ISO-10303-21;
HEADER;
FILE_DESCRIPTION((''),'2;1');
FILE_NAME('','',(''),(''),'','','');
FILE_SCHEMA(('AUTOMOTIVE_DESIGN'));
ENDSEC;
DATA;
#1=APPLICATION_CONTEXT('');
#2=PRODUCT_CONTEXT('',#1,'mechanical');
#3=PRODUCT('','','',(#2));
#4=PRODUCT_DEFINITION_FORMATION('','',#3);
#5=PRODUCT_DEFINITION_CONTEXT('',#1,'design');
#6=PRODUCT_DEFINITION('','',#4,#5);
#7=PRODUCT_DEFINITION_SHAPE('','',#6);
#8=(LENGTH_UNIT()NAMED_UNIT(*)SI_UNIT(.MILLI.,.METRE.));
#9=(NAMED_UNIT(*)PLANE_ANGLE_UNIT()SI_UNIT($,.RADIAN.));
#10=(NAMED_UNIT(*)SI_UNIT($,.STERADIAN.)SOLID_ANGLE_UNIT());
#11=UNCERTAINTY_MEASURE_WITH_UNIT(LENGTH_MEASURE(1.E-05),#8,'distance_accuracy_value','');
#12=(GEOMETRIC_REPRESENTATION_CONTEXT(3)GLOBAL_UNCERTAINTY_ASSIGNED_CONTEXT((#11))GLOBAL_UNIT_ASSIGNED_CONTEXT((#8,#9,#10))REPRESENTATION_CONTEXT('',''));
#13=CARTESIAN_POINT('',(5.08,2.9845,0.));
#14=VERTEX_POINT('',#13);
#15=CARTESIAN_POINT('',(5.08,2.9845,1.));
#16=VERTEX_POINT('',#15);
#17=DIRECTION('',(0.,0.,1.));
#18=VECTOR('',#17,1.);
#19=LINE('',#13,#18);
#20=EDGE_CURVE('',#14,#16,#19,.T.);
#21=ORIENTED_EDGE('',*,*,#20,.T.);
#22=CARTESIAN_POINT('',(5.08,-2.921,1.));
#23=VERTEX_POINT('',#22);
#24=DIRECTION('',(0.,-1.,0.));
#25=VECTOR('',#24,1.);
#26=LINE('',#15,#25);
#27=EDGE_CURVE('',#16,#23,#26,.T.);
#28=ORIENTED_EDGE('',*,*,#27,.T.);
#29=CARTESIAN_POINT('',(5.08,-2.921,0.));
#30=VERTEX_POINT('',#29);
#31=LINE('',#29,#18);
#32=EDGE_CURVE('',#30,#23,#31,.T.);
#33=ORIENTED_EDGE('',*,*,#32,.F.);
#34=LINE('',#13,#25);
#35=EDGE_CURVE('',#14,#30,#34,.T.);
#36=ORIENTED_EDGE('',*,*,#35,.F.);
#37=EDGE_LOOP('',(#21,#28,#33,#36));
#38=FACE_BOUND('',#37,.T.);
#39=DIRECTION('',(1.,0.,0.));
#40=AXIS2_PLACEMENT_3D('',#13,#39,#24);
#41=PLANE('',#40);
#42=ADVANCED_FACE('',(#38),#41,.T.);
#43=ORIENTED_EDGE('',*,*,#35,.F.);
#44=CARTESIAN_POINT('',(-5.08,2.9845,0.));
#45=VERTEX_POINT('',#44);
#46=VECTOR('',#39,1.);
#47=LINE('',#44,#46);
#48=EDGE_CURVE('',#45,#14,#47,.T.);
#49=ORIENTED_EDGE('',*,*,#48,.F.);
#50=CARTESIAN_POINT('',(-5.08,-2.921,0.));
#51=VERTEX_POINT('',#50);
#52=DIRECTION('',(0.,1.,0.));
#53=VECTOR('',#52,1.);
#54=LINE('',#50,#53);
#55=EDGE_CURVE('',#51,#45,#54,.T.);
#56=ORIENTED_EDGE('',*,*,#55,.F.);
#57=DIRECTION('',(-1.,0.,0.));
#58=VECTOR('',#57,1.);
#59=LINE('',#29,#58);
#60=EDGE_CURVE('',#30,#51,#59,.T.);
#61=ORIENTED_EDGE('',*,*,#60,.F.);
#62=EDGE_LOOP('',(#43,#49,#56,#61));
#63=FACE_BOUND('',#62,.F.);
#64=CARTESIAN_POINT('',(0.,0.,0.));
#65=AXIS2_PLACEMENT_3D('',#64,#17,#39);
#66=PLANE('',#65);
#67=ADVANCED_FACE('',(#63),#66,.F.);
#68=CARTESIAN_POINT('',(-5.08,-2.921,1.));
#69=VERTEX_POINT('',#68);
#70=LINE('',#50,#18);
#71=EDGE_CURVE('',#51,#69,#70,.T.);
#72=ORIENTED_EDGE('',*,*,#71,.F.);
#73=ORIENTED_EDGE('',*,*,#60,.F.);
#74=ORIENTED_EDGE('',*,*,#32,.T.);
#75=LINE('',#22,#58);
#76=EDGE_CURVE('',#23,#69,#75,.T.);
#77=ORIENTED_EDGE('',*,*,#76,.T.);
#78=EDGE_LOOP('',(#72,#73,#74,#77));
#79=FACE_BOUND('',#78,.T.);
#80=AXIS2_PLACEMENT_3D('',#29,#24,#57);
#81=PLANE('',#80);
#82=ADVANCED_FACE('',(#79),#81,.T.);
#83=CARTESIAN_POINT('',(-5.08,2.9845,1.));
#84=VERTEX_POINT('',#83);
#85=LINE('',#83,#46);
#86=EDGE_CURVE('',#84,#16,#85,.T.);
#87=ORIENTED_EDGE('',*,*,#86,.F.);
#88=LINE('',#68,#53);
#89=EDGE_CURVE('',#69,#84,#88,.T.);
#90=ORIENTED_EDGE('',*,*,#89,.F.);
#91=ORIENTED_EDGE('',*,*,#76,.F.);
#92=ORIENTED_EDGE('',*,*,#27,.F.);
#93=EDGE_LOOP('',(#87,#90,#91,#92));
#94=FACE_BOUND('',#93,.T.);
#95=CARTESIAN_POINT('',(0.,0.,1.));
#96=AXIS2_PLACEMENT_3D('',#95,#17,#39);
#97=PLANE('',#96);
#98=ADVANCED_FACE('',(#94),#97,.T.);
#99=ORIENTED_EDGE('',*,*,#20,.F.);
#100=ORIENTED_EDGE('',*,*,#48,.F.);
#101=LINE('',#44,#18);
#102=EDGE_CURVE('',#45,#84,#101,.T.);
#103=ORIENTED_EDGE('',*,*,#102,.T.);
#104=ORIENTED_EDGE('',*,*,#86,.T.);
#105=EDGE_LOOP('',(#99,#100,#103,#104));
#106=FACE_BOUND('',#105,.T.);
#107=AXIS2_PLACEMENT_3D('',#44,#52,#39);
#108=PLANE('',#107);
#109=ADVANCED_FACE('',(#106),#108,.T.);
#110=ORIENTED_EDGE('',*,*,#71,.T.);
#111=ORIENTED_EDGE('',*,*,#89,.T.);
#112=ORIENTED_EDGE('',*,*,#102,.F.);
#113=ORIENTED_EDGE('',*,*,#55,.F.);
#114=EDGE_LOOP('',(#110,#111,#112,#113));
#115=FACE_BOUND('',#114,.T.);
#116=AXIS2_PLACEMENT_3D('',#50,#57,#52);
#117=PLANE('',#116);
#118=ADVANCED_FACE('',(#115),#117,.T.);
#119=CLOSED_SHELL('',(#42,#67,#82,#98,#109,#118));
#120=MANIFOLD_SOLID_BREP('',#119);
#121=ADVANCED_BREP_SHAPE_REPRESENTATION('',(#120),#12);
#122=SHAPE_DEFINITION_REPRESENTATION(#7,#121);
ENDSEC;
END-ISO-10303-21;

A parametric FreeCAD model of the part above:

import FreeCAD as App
import Part
import Sketcher


def add_polygon(sketch, points):
    """Adds a closed chain of lines whose ends are joined by coincident constraints."""
    first, n = sketch.GeometryCount, len(points)
    for a, b in zip(points, points[1:] + points[:1]):
        sketch.addGeometry(Part.LineSegment(App.Vector(*a, 0), App.Vector(*b, 0)), False)
    for i in range(n):
        sketch.addConstraint(Sketcher.Constraint("Coincident", first + i, 2, first + (i + 1) % n, 1))

doc = App.newDocument("Part")
params = doc.addObject("Spreadsheet::Sheet", "Params")
for row, (alias, value) in enumerate([
    ("sketch1_width", "10.16 mm"),
    ("pad1_length", "1 mm"),
], start=1):
    params.set(f"A{row}", alias)
    params.set(f"B{row}", "=" + value)
    params.setAlias(f"B{row}", alias)

body = doc.addObject("PartDesign::Body", "Body")

sketch1 = doc.addObject("Sketcher::SketchObject", "Sketch")
body.addObject(sketch1)
sketch1.AttachmentSupport = (doc.XY_Plane, [""])
sketch1.MapMode = "FlatFace"
add_polygon(sketch1, [(5, 3), (-5, 3), (-5, -3), (5, -3)])
sketch1.addConstraint(Sketcher.Constraint("Horizontal", 0))
sketch1.addConstraint(Sketcher.Constraint("Vertical", 1))
sketch1.addConstraint(Sketcher.Constraint("Horizontal", 2))
sketch1.addConstraint(Sketcher.Constraint("Vertical", 3))
sketch1.addConstraint(Sketcher.Constraint("DistanceX", 0, 2, 0, 1, 10.16))
sketch1.addConstraint(Sketcher.Constraint("DistanceX", 0, 2, -1, 1, 5.08))
sketch1.addConstraint(Sketcher.Constraint("DistanceY", 1, 2, 1, 1, 5.9055))
sketch1.addConstraint(Sketcher.Constraint("DistanceY", 1, 2, -1, 1, 2.921))
sketch1.setExpression("Constraints[8]", "Params.sketch1_width")
pad1 = doc.addObject("PartDesign::Pad", "Pad")
body.addObject(pad1)
pad1.Profile = sketch1
pad1.setExpression("Length", "Params.pad1_length")

doc.recompute()
